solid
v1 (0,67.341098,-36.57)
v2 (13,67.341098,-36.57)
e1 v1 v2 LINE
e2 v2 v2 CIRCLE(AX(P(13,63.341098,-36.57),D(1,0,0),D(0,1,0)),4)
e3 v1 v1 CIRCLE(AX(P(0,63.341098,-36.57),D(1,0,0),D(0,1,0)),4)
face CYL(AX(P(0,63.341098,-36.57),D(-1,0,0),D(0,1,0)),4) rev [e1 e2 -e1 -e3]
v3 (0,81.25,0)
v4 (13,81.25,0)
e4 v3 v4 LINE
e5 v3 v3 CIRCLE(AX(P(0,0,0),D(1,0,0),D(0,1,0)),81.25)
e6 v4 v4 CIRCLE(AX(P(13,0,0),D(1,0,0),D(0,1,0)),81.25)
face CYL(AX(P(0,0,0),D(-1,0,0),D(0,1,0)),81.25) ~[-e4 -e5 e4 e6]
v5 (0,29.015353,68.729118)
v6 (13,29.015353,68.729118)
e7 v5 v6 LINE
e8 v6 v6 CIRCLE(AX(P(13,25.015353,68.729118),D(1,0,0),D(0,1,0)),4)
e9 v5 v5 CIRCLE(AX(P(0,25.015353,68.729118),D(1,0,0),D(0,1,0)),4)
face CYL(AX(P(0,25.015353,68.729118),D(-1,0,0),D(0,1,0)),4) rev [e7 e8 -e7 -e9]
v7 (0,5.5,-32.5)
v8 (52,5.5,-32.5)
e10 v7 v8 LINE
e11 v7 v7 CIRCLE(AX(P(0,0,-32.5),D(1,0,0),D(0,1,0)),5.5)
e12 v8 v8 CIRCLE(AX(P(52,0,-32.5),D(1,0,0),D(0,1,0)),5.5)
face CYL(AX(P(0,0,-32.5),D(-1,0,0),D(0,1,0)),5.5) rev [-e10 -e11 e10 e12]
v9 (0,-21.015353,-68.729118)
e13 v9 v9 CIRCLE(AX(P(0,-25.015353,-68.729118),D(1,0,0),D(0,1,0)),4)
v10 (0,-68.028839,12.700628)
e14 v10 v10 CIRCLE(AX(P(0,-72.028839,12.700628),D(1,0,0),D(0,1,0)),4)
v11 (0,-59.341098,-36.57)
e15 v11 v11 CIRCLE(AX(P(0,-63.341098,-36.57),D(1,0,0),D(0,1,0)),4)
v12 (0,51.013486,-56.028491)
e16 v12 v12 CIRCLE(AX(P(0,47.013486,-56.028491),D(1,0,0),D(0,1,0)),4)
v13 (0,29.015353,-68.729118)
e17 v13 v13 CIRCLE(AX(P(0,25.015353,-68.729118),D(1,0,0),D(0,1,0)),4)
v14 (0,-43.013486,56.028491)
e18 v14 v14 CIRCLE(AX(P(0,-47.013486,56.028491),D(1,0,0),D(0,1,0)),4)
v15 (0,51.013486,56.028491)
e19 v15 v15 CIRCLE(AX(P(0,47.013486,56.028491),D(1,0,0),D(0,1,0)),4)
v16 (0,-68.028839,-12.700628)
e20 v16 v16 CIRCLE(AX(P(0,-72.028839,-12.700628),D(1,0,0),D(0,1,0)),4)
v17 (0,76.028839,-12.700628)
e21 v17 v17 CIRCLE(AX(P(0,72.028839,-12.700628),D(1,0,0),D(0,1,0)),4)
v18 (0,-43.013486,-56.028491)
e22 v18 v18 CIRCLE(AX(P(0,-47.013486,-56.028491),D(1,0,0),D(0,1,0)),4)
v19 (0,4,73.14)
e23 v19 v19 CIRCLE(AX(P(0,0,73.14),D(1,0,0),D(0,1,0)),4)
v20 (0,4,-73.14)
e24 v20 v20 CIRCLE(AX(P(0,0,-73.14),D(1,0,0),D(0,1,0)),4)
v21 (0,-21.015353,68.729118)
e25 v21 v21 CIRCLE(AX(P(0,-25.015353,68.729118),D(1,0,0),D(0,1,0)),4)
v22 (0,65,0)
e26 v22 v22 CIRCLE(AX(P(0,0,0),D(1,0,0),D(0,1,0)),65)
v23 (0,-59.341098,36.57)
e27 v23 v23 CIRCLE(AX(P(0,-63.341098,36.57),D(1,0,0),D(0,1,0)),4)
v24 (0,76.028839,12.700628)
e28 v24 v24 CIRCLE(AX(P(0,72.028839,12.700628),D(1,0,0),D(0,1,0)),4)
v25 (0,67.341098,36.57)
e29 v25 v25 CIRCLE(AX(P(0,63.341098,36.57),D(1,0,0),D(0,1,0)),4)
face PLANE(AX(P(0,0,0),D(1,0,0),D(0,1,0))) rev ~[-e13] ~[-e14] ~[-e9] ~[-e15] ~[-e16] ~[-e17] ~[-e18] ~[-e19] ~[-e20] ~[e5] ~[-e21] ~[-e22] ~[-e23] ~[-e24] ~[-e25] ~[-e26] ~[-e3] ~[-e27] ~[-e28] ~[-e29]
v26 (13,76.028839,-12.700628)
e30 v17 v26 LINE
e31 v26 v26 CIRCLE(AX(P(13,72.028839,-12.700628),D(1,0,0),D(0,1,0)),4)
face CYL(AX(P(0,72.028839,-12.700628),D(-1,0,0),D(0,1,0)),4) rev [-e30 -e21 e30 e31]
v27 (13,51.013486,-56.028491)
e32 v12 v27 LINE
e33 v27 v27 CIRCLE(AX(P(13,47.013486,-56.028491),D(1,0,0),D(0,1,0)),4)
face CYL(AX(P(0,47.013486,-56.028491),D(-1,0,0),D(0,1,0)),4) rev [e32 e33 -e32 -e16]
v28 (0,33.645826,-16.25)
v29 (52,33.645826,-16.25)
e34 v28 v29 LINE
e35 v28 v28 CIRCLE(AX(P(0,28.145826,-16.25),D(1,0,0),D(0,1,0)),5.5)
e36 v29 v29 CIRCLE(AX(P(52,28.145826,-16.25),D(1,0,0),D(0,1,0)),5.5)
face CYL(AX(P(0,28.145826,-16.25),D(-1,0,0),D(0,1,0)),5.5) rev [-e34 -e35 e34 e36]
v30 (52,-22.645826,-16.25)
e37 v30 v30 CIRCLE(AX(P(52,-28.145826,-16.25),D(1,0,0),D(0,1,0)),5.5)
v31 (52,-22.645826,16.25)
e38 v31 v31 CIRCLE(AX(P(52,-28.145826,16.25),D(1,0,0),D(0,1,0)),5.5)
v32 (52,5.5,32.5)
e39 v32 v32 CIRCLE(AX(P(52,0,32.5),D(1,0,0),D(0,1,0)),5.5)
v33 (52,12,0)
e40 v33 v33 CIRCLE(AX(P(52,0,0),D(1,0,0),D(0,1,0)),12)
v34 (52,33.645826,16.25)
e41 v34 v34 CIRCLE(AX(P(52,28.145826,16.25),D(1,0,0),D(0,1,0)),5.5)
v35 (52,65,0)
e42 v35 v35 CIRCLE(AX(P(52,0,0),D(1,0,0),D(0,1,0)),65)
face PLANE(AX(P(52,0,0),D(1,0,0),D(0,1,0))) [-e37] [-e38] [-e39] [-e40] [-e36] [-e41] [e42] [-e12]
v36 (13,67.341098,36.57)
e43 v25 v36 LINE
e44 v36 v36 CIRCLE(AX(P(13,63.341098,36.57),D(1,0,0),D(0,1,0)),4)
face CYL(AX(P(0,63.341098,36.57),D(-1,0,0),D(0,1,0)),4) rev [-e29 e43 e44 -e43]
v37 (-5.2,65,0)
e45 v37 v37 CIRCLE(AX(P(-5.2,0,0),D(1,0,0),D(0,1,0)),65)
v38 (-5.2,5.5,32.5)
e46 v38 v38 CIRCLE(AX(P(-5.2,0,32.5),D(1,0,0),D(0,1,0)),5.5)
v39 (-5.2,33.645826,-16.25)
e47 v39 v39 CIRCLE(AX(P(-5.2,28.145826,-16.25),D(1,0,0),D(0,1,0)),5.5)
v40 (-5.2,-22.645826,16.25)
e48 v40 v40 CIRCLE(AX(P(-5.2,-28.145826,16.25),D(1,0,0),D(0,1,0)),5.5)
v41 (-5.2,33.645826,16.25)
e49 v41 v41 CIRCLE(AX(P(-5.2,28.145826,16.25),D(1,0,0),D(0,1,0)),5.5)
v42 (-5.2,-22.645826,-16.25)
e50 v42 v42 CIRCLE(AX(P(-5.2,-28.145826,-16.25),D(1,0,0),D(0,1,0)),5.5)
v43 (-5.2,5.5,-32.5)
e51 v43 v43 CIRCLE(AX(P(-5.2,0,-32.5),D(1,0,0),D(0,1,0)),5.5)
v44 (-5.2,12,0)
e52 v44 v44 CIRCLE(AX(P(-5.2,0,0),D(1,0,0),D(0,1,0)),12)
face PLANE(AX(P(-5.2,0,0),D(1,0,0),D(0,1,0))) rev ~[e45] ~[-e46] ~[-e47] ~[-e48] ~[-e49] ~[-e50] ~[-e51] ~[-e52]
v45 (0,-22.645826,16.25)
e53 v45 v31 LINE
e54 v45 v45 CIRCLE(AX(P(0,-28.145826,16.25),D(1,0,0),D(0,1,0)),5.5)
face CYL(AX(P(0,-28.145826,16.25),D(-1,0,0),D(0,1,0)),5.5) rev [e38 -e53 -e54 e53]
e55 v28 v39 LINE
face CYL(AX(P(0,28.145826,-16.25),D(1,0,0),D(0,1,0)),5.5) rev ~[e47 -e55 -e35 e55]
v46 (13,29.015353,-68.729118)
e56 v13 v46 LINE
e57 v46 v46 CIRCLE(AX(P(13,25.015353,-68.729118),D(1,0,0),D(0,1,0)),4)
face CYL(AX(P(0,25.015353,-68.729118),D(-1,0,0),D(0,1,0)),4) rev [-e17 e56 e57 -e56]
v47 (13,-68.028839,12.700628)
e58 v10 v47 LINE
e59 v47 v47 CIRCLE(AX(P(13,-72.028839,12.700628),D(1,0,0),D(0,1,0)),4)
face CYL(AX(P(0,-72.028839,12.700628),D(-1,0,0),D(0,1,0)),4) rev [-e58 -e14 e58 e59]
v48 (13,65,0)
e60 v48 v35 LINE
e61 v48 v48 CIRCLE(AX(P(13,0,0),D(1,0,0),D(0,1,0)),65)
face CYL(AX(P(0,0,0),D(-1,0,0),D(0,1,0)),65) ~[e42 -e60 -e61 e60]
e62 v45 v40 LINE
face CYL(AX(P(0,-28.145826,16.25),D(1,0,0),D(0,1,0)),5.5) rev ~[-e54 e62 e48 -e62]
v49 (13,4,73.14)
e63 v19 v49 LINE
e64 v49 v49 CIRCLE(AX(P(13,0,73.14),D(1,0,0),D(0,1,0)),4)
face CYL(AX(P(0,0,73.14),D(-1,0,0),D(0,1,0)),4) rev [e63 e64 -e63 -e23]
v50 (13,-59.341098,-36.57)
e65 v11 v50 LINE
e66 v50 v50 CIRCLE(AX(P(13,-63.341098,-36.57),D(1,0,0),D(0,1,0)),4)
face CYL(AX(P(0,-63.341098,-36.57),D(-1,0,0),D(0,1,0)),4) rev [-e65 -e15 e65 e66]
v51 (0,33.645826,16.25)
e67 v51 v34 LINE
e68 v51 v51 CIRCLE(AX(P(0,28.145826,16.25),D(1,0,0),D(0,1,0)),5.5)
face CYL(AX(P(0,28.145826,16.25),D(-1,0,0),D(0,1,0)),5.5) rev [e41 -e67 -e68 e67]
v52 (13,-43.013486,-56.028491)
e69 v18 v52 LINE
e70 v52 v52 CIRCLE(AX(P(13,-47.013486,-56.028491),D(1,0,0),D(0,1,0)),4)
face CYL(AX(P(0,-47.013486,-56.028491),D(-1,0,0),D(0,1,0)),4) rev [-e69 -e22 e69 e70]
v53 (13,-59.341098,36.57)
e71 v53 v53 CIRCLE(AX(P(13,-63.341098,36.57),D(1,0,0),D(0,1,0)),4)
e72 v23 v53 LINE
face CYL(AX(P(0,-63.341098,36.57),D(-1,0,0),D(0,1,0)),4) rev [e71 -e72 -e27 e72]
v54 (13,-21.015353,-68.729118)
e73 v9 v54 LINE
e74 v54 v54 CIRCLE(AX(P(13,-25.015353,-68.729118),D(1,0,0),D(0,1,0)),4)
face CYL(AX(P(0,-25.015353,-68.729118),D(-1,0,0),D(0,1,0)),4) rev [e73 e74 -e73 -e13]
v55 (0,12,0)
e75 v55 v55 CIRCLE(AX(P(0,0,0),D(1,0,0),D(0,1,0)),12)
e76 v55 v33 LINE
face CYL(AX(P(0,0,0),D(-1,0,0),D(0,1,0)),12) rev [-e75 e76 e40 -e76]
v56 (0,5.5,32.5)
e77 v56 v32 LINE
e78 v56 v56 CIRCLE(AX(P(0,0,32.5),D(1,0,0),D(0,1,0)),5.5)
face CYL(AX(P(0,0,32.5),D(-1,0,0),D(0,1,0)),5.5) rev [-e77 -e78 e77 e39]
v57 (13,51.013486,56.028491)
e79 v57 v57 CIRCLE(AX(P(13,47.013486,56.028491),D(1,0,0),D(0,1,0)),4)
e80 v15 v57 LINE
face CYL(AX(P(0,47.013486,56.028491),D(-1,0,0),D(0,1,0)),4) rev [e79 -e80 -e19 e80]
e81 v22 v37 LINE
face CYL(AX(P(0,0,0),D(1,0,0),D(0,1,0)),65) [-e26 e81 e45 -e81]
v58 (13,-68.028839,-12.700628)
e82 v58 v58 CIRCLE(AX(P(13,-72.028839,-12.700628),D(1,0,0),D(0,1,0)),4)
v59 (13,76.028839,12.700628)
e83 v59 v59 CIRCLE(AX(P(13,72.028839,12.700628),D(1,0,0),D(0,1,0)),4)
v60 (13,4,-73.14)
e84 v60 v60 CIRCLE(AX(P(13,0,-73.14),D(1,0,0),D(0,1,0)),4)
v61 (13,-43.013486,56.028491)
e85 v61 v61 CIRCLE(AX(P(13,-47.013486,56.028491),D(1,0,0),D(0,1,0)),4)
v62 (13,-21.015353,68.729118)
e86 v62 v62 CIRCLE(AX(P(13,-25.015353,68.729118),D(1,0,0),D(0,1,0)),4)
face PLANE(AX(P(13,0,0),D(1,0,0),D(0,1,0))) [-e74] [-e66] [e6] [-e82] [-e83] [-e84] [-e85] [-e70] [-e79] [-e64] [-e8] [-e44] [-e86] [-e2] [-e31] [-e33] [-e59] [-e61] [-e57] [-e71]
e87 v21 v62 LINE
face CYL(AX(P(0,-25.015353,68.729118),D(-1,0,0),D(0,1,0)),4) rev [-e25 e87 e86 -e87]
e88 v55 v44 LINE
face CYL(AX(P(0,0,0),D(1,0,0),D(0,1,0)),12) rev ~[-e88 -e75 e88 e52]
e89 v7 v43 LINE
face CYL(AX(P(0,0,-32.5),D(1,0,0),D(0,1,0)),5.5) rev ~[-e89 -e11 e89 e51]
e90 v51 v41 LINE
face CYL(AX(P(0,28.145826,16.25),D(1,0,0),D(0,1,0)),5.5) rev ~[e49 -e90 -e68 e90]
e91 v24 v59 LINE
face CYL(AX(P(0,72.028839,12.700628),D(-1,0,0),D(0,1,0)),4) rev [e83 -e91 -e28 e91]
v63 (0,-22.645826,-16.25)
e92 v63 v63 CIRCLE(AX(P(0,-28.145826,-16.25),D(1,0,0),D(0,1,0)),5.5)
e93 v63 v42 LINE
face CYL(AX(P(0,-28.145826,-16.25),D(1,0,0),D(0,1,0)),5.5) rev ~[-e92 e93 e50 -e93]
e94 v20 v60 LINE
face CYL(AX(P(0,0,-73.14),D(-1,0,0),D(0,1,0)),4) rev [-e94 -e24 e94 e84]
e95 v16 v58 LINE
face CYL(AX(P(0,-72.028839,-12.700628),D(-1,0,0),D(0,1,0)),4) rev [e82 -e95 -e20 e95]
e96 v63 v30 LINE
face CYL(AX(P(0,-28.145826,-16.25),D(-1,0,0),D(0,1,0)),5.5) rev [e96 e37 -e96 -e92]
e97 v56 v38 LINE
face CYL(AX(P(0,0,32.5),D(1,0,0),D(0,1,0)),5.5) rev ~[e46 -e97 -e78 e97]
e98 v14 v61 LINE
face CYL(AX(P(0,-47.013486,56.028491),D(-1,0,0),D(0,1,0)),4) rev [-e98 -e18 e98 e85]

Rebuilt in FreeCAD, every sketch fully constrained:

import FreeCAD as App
import Part
import Sketcher

doc = App.newDocument("Part")
body = doc.addObject("PartDesign::Body", "Body")

# Sketch on YZ plane
sketch1 = doc.addObject("Sketcher::SketchObject", "Sketch")
body.addObject(sketch1)
sketch1.AttachmentSupport = (doc.YZ_Plane, [""])
sketch1.MapMode = "FlatFace"
sketch1.addGeometry([
    Part.Circle(App.Vector(0, 0, 0), App.Vector(0, 0, 1), 65),  # 0
    Part.Circle(App.Vector(-28, -16, 0), App.Vector(0, 0, 1), 6),  # 1
    Part.Circle(App.Vector(0, -32, 0), App.Vector(0, 0, 1), 6),  # 2
    Part.Circle(App.Vector(28, -16, 0), App.Vector(0, 0, 1), 6),  # 3
    Part.Circle(App.Vector(-28, 16, 0), App.Vector(0, 0, 1), 6),  # 4
    Part.Circle(App.Vector(0, 0, 0), App.Vector(0, 0, 1), 12),  # 5
    Part.Circle(App.Vector(28, 16, 0), App.Vector(0, 0, 1), 6),  # 6
    Part.Circle(App.Vector(0, 32, 0), App.Vector(0, 0, 1), 6),  # 7
], False)
sketch1.addConstraint([
    Sketcher.Constraint("Coincident", 0, 3, -1, 1),
    Sketcher.Constraint("Coincident", 5, 3, -1, 1),
    Sketcher.Constraint("Equal", 1, 2),
    Sketcher.Constraint("Equal", 2, 3),
    Sketcher.Constraint("Equal", 3, 4),
    Sketcher.Constraint("Equal", 4, 6),
    Sketcher.Constraint("Equal", 6, 7),
    Sketcher.Constraint("Symmetric", 3, 3, 4, 3, -1, 1),
    Sketcher.Constraint("Symmetric", 1, 3, 6, 3, -1, 1),
    Sketcher.Constraint("Symmetric", 2, 3, 7, 3, -1, 1),
    Sketcher.Constraint("Symmetric", 1, 3, 3, 3, -2),
    Sketcher.Constraint("PointOnObject", 2, 3, -2),
    Sketcher.Constraint("Diameter", 0, 130.0),
    Sketcher.Constraint("Diameter", 1, 11.0),
    Sketcher.Constraint("Diameter", 5, 24.0),
    Sketcher.Constraint("DistanceY", 2, 3, -1, 1, 32.5),
    Sketcher.Constraint("DistanceY", 1, 3, 4, 3, 32.5),
    Sketcher.Constraint("DistanceX", 1, 3, -1, 1, 28.145826),
])
pad1 = doc.addObject("PartDesign::Pad", "Pad")
body.addObject(pad1)
pad1.Profile = sketch1
pad1.Length = 52

# Sketch on YZ plane
sketch2 = doc.addObject("Sketcher::SketchObject", "Sketch001")
body.addObject(sketch2)
sketch2.AttachmentSupport = (doc.YZ_Plane, [""])
sketch2.MapMode = "FlatFace"
sketch2.addGeometry([
    Part.Circle(App.Vector(0, 0, 0), App.Vector(0, 0, 1), 81.2),  # 0
    Part.Circle(App.Vector(-47, -56, 0), App.Vector(0, 0, 1), 4),  # 1
    Part.Circle(App.Vector(-25, -68.7, 0), App.Vector(0, 0, 1), 4),  # 2
    Part.Circle(App.Vector(-63.3, -36.6, 0), App.Vector(0, 0, 1), 4),  # 3
    Part.Circle(App.Vector(-72, -12.7, 0), App.Vector(0, 0, 1), 4),  # 4
    Part.Circle(App.Vector(0, -73.1, 0), App.Vector(0, 0, 1), 4),  # 5
    Part.Circle(App.Vector(25, -68.7, 0), App.Vector(0, 0, 1), 4),  # 6
    Part.Circle(App.Vector(47, -56, 0), App.Vector(0, 0, 1), 4),  # 7
    Part.Circle(App.Vector(63.3, -36.6, 0), App.Vector(0, 0, 1), 4),  # 8
    Part.Circle(App.Vector(72, -12.7, 0), App.Vector(0, 0, 1), 4),  # 9
    Part.Circle(App.Vector(-72, 12.7, 0), App.Vector(0, 0, 1), 4),  # 10
    Part.Circle(App.Vector(-63.3, 36.6, 0), App.Vector(0, 0, 1), 4),  # 11
    Part.Circle(App.Vector(-47, 56, 0), App.Vector(0, 0, 1), 4),  # 12
    Part.Circle(App.Vector(-25, 68.7, 0), App.Vector(0, 0, 1), 4),  # 13
    Part.Circle(App.Vector(0, 0, 0), App.Vector(0, 0, 1), 65),  # 14
    Part.Circle(App.Vector(72, 12.7, 0), App.Vector(0, 0, 1), 4),  # 15
    Part.Circle(App.Vector(63.3, 36.6, 0), App.Vector(0, 0, 1), 4),  # 16
    Part.Circle(App.Vector(0, 73.1, 0), App.Vector(0, 0, 1), 4),  # 17
    Part.Circle(App.Vector(25, 68.7, 0), App.Vector(0, 0, 1), 4),  # 18
    Part.Circle(App.Vector(47, 56, 0), App.Vector(0, 0, 1), 4),  # 19
], False)
sketch2.addConstraint([
    Sketcher.Constraint("Coincident", 0, 3, -1, 1),
    Sketcher.Constraint("Coincident", 14, 3, -1, 1),
    Sketcher.Constraint("Equal", 1, 2),
    Sketcher.Constraint("Equal", 2, 3),
    Sketcher.Constraint("Equal", 3, 4),
    Sketcher.Constraint("Equal", 4, 5),
    Sketcher.Constraint("Equal", 5, 6),
    Sketcher.Constraint("Equal", 6, 7),
    Sketcher.Constraint("Equal", 7, 8),
    Sketcher.Constraint("Equal", 8, 9),
    Sketcher.Constraint("Equal", 9, 10),
    Sketcher.Constraint("Equal", 10, 11),
    Sketcher.Constraint("Equal", 11, 12),
    Sketcher.Constraint("Equal", 12, 13),
    Sketcher.Constraint("Equal", 13, 15),
    Sketcher.Constraint("Equal", 15, 16),
    Sketcher.Constraint("Equal", 16, 17),
    Sketcher.Constraint("Equal", 17, 18),
    Sketcher.Constraint("Equal", 18, 19),
    Sketcher.Constraint("Symmetric", 9, 3, 10, 3, -1, 1),
    Sketcher.Constraint("Symmetric", 8, 3, 11, 3, -1, 1),
    Sketcher.Constraint("Symmetric", 7, 3, 12, 3, -1, 1),
    Sketcher.Constraint("Symmetric", 6, 3, 13, 3, -1, 1),
    Sketcher.Constraint("Symmetric", 4, 3, 15, 3, -1, 1),
    Sketcher.Constraint("Symmetric", 3, 3, 16, 3, -1, 1),
    Sketcher.Constraint("Symmetric", 5, 3, 17, 3, -1, 1),
    Sketcher.Constraint("Symmetric", 2, 3, 18, 3, -1, 1),
    Sketcher.Constraint("Symmetric", 1, 3, 19, 3, -1, 1),
    Sketcher.Constraint("Symmetric", 2, 3, 6, 3, -2),
    Sketcher.Constraint("Symmetric", 1, 3, 7, 3, -2),
    Sketcher.Constraint("Symmetric", 3, 3, 8, 3, -2),
    Sketcher.Constraint("Symmetric", 4, 3, 9, 3, -2),
    Sketcher.Constraint("PointOnObject", 5, 3, -2),
    Sketcher.Constraint("Diameter", 1, 8.0),
    Sketcher.Constraint("Diameter", 14, 130.0),
    Sketcher.Constraint("Diameter", 0, 162.5),
    Sketcher.Constraint("DistanceY", 3, 3, -1, 1, 36.57),
    Sketcher.Constraint("DistanceY", 5, 3, -1, 1, 73.14),
    Sketcher.Constraint("DistanceX", 3, 3, -1, 1, 63.341098),
    Sketcher.Constraint("DistanceY", 1, 3, -1, 1, 56.028491),
    Sketcher.Constraint("DistanceY", 2, 3, -1, 1, 68.729118),
    Sketcher.Constraint("DistanceX", 4, 3, -1, 1, 72.028839),
    Sketcher.Constraint("DistanceY", 3, 3, 4, 3, 23.869372),
    Sketcher.Constraint("DistanceX", 1, 3, 6, 3, 72.028839),
    Sketcher.Constraint("DistanceX", 3, 3, 6, 3, 88.356451),
])
pad2 = doc.addObject("PartDesign::Pad", "Pad001")
body.addObject(pad2)
pad2.Profile = sketch2
pad2.Length = 13

# Sketch on YZ plane
sketch3 = doc.addObject("Sketcher::SketchObject", "Sketch002")
body.addObject(sketch3)
sketch3.AttachmentSupport = (doc.YZ_Plane, [""])
sketch3.MapMode = "FlatFace"
sketch3.addGeometry([
    Part.Circle(App.Vector(0, 0, 0), App.Vector(0, 0, 1), 65),  # 0
    Part.Circle(App.Vector(-28, -16, 0), App.Vector(0, 0, 1), 6),  # 1
    Part.Circle(App.Vector(0, -32, 0), App.Vector(0, 0, 1), 6),  # 2
    Part.Circle(App.Vector(28, -16, 0), App.Vector(0, 0, 1), 6),  # 3
    Part.Circle(App.Vector(-28, 16, 0), App.Vector(0, 0, 1), 6),  # 4
    Part.Circle(App.Vector(0, 0, 0), App.Vector(0, 0, 1), 12),  # 5
    Part.Circle(App.Vector(28, 16, 0), App.Vector(0, 0, 1), 6),  # 6
    Part.Circle(App.Vector(0, 32, 0), App.Vector(0, 0, 1), 6),  # 7
], False)
sketch3.addConstraint([
    Sketcher.Constraint("Coincident", 0, 3, -1, 1),
    Sketcher.Constraint("Coincident", 5, 3, -1, 1),
    Sketcher.Constraint("Equal", 1, 2),
    Sketcher.Constraint("Equal", 2, 3),
    Sketcher.Constraint("Equal", 3, 4),
    Sketcher.Constraint("Equal", 4, 6),
    Sketcher.Constraint("Equal", 6, 7),
    Sketcher.Constraint("Symmetric", 3, 3, 4, 3, -1, 1),
    Sketcher.Constraint("Symmetric", 1, 3, 6, 3, -1, 1),
    Sketcher.Constraint("Symmetric", 2, 3, 7, 3, -1, 1),
    Sketcher.Constraint("Symmetric", 1, 3, 3, 3, -2),
    Sketcher.Constraint("PointOnObject", 2, 3, -2),
    Sketcher.Constraint("Diameter", 0, 130.0),
    Sketcher.Constraint("Diameter", 1, 11.0),
    Sketcher.Constraint("Diameter", 5, 24.0),
    Sketcher.Constraint("DistanceY", 2, 3, -1, 1, 32.5),
    Sketcher.Constraint("DistanceY", 1, 3, 4, 3, 32.5),
    Sketcher.Constraint("DistanceX", 1, 3, -1, 1, 28.145826),
])
pad3 = doc.addObject("PartDesign::Pad", "Pad002")
body.addObject(pad3)
pad3.Profile = sketch3
pad3.Length = 5.2
pad3.Reversed = True

doc.recompute()
